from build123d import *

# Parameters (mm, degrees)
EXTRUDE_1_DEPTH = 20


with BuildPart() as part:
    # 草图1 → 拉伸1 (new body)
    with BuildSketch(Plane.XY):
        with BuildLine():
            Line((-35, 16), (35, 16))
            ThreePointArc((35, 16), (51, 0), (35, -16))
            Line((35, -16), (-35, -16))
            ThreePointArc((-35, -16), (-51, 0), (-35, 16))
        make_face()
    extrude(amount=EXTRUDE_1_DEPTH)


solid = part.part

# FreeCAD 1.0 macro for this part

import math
import FreeCAD as App
import Part
import Sketcher
from FreeCAD import Vector

doc = App.newDocument("Part")
params = doc.addObject("Spreadsheet::Sheet", "Params")
for row, (alias, value) in enumerate([
    ("sketch1_radius", "16 mm"),
    ("sketch1_width", "70 mm"),
    ("pad1_length", "20 mm"),
], start=1):
    params.set(f"A{row}", alias)
    params.set(f"B{row}", "=" + value)
    params.setAlias(f"B{row}", alias)

body = doc.addObject("PartDesign::Body", "Body")

# Sketch on XY plane
sketch1 = body.newObject("Sketcher::SketchObject", "Sketch")
sketch1.AttachmentSupport = (doc.getObject("XY_Plane"), [""])
sketch1.MapMode = "FlatFace"
sketch1.addGeometry(Part.LineSegment(Vector(35, 16, 0), Vector(-35, 16, 0)), False)
sketch1.addGeometry(Part.ArcOfCircle(Part.Circle(Vector(-35, 0, 0), Vector(0, 0, 1), 16), math.radians(90), math.radians(270)), False)
sketch1.addGeometry(Part.LineSegment(Vector(-35, -16, 0), Vector(35, -16, 0)), False)
sketch1.addGeometry(Part.ArcOfCircle(Part.Circle(Vector(35, 0, 0), Vector(0, 0, 1), 16), math.radians(-90), math.radians(90)), False)
sketch1.addConstraint(Sketcher.Constraint("Tangent", 0, 2, 1, 1))
sketch1.addConstraint(Sketcher.Constraint("Tangent", 1, 2, 2, 1))
sketch1.addConstraint(Sketcher.Constraint("Tangent", 2, 2, 3, 1))
sketch1.addConstraint(Sketcher.Constraint("Tangent", 3, 2, 0, 1))
sketch1.addConstraint(Sketcher.Constraint("Horizontal", 0))
sketch1.addConstraint(Sketcher.Constraint("Horizontal", 2))
sketch1.addConstraint(Sketcher.Constraint("Symmetric", 1, 3, 3, 3, -1, 1))
sketch1.addConstraint(Sketcher.Constraint("Radius", 1, 16.0))
sketch1.addConstraint(Sketcher.Constraint("DistanceX", 0, 2, 0, 1, 70.0))
sketch1.setExpression("Constraints[7]", "Params.sketch1_radius")
sketch1.setExpression("Constraints[8]", "Params.sketch1_width")
pad1 = body.newObject("PartDesign::Pad", "Pad")
pad1.Profile = sketch1
pad1.setExpression("Length", "Params.pad1_length")

doc.recompute()
